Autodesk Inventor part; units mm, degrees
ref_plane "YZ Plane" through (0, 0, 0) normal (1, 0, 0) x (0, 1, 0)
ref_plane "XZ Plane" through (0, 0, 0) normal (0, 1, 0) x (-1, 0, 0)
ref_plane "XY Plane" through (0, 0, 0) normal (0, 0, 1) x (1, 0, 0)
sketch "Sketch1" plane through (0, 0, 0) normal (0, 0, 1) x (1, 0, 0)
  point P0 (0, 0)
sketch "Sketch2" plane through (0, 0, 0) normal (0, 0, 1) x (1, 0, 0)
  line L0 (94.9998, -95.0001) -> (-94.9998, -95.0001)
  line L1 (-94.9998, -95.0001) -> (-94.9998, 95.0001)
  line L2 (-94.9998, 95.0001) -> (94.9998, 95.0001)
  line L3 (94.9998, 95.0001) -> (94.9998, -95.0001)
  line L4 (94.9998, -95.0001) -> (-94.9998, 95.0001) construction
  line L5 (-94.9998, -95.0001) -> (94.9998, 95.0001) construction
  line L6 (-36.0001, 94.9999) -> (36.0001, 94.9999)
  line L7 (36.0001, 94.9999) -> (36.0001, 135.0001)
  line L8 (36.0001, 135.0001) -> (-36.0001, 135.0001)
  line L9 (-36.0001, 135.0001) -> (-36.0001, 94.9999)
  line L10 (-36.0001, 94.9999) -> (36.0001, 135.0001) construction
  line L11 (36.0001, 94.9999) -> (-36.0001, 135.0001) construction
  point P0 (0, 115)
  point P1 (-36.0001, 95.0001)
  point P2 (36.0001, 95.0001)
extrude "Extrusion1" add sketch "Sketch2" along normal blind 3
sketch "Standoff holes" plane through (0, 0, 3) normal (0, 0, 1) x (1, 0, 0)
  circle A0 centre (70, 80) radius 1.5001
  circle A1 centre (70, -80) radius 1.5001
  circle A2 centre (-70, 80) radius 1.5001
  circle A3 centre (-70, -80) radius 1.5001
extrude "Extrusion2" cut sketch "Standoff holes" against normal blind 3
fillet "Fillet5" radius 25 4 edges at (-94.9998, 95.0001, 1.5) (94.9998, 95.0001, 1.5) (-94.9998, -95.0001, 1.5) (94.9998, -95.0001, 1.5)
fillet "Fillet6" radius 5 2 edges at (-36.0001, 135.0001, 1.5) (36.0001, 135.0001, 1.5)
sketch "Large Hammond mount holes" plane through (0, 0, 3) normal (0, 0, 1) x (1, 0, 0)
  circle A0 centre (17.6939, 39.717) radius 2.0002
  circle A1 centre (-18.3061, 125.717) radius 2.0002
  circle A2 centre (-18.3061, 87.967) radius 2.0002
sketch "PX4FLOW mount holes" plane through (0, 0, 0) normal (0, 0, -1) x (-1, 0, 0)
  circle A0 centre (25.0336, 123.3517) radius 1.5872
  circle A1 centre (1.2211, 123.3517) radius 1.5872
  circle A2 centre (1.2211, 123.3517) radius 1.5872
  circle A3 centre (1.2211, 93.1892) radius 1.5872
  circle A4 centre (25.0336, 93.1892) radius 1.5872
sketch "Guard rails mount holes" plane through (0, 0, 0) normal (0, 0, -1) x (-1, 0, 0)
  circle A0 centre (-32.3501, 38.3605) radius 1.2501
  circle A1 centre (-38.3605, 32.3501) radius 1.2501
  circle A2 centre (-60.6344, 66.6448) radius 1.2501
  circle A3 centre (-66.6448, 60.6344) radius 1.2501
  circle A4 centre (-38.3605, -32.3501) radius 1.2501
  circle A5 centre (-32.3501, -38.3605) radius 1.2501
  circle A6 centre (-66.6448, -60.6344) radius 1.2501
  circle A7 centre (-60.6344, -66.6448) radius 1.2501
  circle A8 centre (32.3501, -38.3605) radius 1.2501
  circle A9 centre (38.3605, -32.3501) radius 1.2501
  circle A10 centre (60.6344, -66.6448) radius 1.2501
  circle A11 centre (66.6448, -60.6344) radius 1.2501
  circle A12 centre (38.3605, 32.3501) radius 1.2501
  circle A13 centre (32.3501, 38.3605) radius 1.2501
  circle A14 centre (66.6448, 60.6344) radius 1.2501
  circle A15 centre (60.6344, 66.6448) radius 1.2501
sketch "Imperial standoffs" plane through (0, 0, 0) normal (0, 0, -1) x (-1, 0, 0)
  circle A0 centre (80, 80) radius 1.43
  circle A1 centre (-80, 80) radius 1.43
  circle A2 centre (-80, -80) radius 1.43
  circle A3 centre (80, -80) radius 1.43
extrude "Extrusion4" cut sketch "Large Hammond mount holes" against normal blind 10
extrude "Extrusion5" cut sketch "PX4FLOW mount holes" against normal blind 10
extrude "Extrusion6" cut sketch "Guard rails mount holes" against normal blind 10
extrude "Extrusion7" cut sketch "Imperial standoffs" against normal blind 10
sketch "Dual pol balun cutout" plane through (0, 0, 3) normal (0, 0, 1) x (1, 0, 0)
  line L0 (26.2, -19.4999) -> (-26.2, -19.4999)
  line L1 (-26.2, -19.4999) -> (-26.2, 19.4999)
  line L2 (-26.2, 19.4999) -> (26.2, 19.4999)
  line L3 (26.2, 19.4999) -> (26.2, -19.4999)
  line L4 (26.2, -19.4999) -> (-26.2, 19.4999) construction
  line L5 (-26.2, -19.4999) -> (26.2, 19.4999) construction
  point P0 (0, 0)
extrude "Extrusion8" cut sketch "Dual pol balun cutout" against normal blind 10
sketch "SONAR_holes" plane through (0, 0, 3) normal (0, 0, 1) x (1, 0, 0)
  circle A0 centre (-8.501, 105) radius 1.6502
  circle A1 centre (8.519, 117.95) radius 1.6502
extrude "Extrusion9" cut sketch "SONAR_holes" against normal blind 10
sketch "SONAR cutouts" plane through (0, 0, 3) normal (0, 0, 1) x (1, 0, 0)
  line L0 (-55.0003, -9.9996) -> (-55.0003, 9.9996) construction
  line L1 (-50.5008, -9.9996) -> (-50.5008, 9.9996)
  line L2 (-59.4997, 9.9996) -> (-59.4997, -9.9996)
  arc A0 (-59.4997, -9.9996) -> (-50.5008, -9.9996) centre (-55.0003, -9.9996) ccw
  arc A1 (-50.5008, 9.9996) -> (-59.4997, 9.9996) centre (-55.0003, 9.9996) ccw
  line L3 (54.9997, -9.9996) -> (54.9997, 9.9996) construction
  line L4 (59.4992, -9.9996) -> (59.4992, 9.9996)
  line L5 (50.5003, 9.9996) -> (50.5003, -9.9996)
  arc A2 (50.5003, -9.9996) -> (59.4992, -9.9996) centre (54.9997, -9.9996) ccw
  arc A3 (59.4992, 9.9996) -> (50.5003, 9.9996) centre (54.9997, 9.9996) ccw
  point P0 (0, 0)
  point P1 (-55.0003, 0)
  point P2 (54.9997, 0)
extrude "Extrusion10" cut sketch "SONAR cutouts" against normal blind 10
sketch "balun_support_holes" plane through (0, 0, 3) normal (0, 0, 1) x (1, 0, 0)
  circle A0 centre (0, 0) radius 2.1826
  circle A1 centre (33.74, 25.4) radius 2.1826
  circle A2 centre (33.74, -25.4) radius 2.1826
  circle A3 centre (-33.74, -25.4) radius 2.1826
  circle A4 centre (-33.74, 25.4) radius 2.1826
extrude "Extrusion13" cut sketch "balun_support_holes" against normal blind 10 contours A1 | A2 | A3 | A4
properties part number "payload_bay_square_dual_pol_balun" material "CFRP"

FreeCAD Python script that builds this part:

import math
import FreeCAD as App
import Part
import Sketcher
from FreeCAD import Vector
Q = App.Units.Quantity


def edges_at(feature, points):
    """Names of the edges that pass closest to the given points."""
    edges = feature.Shape.Edges
    near = lambda p: min(range(len(edges)), key=lambda i: edges[i].distToShape(Part.Vertex(*p))[0])
    return sorted({f"Edge{near(p) + 1}" for p in points})

doc = App.newDocument("Part")
params = doc.addObject("Spreadsheet::Sheet", "Params")
for row, (alias, value) in enumerate([
    ("pad1_length", "3 mm"),
    ("pocket1_length", "3 mm"),
    ("fillet_radius", "25 mm"),
    ("fillet2_radius", "5 mm"),
    ("pocket2_length", "10 mm"),
    ("pocket3_length", "10 mm"),
    ("pocket4_length", "10 mm"),
    ("sketch6_diameter", "2.86 mm"),
    ("pocket5_length", "10 mm"),
    ("sketch7_width", "52.4 mm"),
    ("pocket6_length", "10 mm"),
    ("pocket7_length", "10 mm"),
    ("pocket8_length", "10 mm"),
    ("pocket9_length", "10 mm"),
], start=1):
    params.set(f"A{row}", alias)
    params.set(f"B{row}", "=" + value)
    params.setAlias(f"B{row}", alias)

body = doc.addObject("PartDesign::Body", "Body")

# Sketch on XY plane
sketch1 = body.newObject("Sketcher::SketchObject", "Sketch")
sketch1.AttachmentSupport = (doc.getObject("XY_Plane"), [""])
sketch1.MapMode = "FlatFace"
sketch1.addGeometry(Part.LineSegment(Vector(-94.9998, -95.0001, 0), Vector(94.9998, -95.0001, 0)), False)
sketch1.addGeometry(Part.LineSegment(Vector(94.9998, -95.0001, 0), Vector(94.9998, 95.0001, 0)), False)
sketch1.addGeometry(Part.LineSegment(Vector(94.9998, 95.0001, 0), Vector(36.0001, 95.0001, 0)), False)
sketch1.addGeometry(Part.LineSegment(Vector(36.0001, 94.9999, 0), Vector(36.0001, 135.0001, 0)), False)
sketch1.addGeometry(Part.LineSegment(Vector(36.0001, 135.0001, 0), Vector(-36.0001, 135.0001, 0)), False)
sketch1.addGeometry(Part.LineSegment(Vector(-36.0001, 135.0001, 0), Vector(-36.0001, 94.9999, 0)), False)
sketch1.addGeometry(Part.LineSegment(Vector(-36.0001, 95.0001, 0), Vector(-94.9998, 95.0001, 0)), False)
sketch1.addGeometry(Part.LineSegment(Vector(-94.9998, 95.0001, 0), Vector(-94.9998, -95.0001, 0)), False)
sketch1.addConstraint(Sketcher.Constraint("Coincident", 0, 2, 1, 1))
sketch1.addConstraint(Sketcher.Constraint("Coincident", 1, 2, 2, 1))
sketch1.addConstraint(Sketcher.Constraint("Coincident", 2, 2, 3, 1))
sketch1.addConstraint(Sketcher.Constraint("Coincident", 3, 2, 4, 1))
sketch1.addConstraint(Sketcher.Constraint("Coincident", 4, 2, 5, 1))
sketch1.addConstraint(Sketcher.Constraint("Coincident", 5, 2, 6, 1))
sketch1.addConstraint(Sketcher.Constraint("Coincident", 6, 2, 7, 1))
sketch1.addConstraint(Sketcher.Constraint("Coincident", 7, 2, 0, 1))
sketch1.addConstraint(Sketcher.Constraint("Horizontal", 0))
sketch1.addConstraint(Sketcher.Constraint("Vertical", 1))
sketch1.addConstraint(Sketcher.Constraint("Horizontal", 2))
sketch1.addConstraint(Sketcher.Constraint("Vertical", 3))
sketch1.addConstraint(Sketcher.Constraint("Horizontal", 4))
sketch1.addConstraint(Sketcher.Constraint("Vertical", 5))
sketch1.addConstraint(Sketcher.Constraint("Horizontal", 6))
sketch1.addConstraint(Sketcher.Constraint("Vertical", 7))
sketch1.addConstraint(Sketcher.Constraint("Symmetric", 0, 2, 6, 2, -1, 1))
sketch1.addConstraint(Sketcher.Constraint("Symmetric", 2, 2, 5, 2, -2))
sketch1.addConstraint(Sketcher.Constraint("DistanceY", 0, 2, -1, 1, Q("95 mm")))
sketch1.addConstraint(Sketcher.Constraint("DistanceX", -1, 1, 2, 2, Q("36 mm")))
sketch1.addConstraint(Sketcher.Constraint("DistanceY", -1, 1, 3, 2, Q("135 mm")))
sketch1.addConstraint(Sketcher.Constraint("DistanceX", 4, 2, 1, 2, Q("131 mm")))
pad1 = body.newObject("PartDesign::Pad", "Pad")
pad1.Profile = sketch1
pad1.setExpression("Length", "Params.pad1_length")

# Sketch on XY plane
sketch2 = body.newObject("Sketcher::SketchObject", "Sketch001")
sketch2.AttachmentSupport = (doc.getObject("XY_Plane"), [""])
sketch2.MapMode = "FlatFace"
sketch2.AttachmentOffset = App.Placement(Vector(0, 0, 3), App.Rotation())
sketch2.addGeometry(Part.Circle(Vector(70, 80, 0), Vector(0, 0, 1), 1.5001), False)
sketch2.addGeometry(Part.Circle(Vector(70, -80, 0), Vector(0, 0, 1), 1.5001), False)
sketch2.addGeometry(Part.Circle(Vector(-70, 80, 0), Vector(0, 0, 1), 1.5001), False)
sketch2.addGeometry(Part.Circle(Vector(-70, -80, 0), Vector(0, 0, 1), 1.5001), False)
sketch2.addConstraint(Sketcher.Constraint("Equal", 0, 1))
sketch2.addConstraint(Sketcher.Constraint("Equal", 1, 2))
sketch2.addConstraint(Sketcher.Constraint("Equal", 2, 3))
sketch2.addConstraint(Sketcher.Constraint("Symmetric", 1, 3, 2, 3, -1, 1))
sketch2.addConstraint(Sketcher.Constraint("Symmetric", 0, 3, 3, 3, -1, 1))
sketch2.addConstraint(Sketcher.Constraint("Symmetric", 0, 3, 2, 3, -2))
sketch2.addConstraint(Sketcher.Constraint("DistanceX", -1, 1, 0, 3, Q("70 mm")))
sketch2.addConstraint(Sketcher.Constraint("DistanceY", -1, 1, 0, 3, Q("80 mm")))
sketch2.addConstraint(Sketcher.Constraint("Diameter", 0, Q("3.0002 mm")))
pocket1 = body.newObject("PartDesign::Pocket", "Pocket")
pocket1.Profile = sketch2
pocket1.setExpression("Length", "Params.pocket1_length")
doc.recompute()

fillet = body.newObject("PartDesign::Fillet", "Fillet")
fillet.Base = (pocket1, edges_at(pocket1, [
    (-95, 95, 1.5),
    (95, 95, 1.5),
    (-95, -95, 1.5),
    (95, -95, 1.5),
]))
fillet.setExpression("Radius", "Params.fillet_radius")
doc.recompute()

fillet2 = body.newObject("PartDesign::Fillet", "Fillet001")
fillet2.Base = (fillet, edges_at(fillet, [(-36, 135, 1.5), (36, 135, 1.5)]))
fillet2.setExpression("Radius", "Params.fillet2_radius")

# Sketch on XY plane
sketch3 = body.newObject("Sketcher::SketchObject", "Sketch002")
sketch3.AttachmentSupport = (doc.getObject("XY_Plane"), [""])
sketch3.MapMode = "FlatFace"
sketch3.AttachmentOffset = App.Placement(Vector(0, 0, 3), App.Rotation())
sketch3.addGeometry(Part.Circle(Vector(17.6939, 39.717, 0), Vector(0, 0, 1), 2.0002), False)
sketch3.addGeometry(Part.Circle(Vector(-18.3061, 125.717, 0), Vector(0, 0, 1), 2.0002), False)
sketch3.addGeometry(Part.Circle(Vector(-18.3061, 87.967, 0), Vector(0, 0, 1), 2.0002), False)
sketch3.addConstraint(Sketcher.Constraint("Equal", 0, 1))
sketch3.addConstraint(Sketcher.Constraint("Equal", 1, 2))
sketch3.addConstraint(Sketcher.Constraint("Vertical", 1, 3, 2, 3))
sketch3.addConstraint(Sketcher.Constraint("DistanceX", 1, 3, 0, 3, Q("36 mm")))
sketch3.addConstraint(Sketcher.Constraint("DistanceY", 0, 3, 1, 3, Q("86 mm")))
sketch3.addConstraint(Sketcher.Constraint("Diameter", 0, Q("4.0004 mm")))
sketch3.addConstraint(Sketcher.Constraint("DistanceY", 2, 3, 1, 3, Q("37.75 mm")))
sketch3.addConstraint(Sketcher.Constraint("DistanceX", -1, 1, 0, 3, Q("17.694 mm")))
sketch3.addConstraint(Sketcher.Constraint("DistanceY", -1, 1, 0, 3, Q("39.717 mm")))
pocket2 = body.newObject("PartDesign::Pocket", "Pocket001")
pocket2.Profile = sketch3
pocket2.setExpression("Length", "Params.pocket2_length")

# Sketch on XY plane
sketch4 = body.newObject("Sketcher::SketchObject", "Sketch003")
sketch4.AttachmentSupport = (doc.getObject("XY_Plane"), [""])
sketch4.MapMode = "FlatFace"
sketch4.addGeometry(Part.Circle(Vector(-25.0336, 123.3517, 0), Vector(0, 0, 1), 1.5872), False)
sketch4.addGeometry(Part.Circle(Vector(-1.2211, 123.3517, 0), Vector(0, 0, 1), 1.5872), False)
sketch4.addGeometry(Part.Circle(Vector(-1.2211, 93.1892, 0), Vector(0, 0, 1), 1.5872), False)
sketch4.addGeometry(Part.Circle(Vector(-25.0336, 93.1892, 0), Vector(0, 0, 1), 1.5872), False)
sketch4.addConstraint(Sketcher.Constraint("Equal", 0, 1))
sketch4.addConstraint(Sketcher.Constraint("Equal", 1, 2))
sketch4.addConstraint(Sketcher.Constraint("Equal", 2, 3))
sketch4.addConstraint(Sketcher.Constraint("Horizontal", 0, 3, 1, 3))
sketch4.addConstraint(Sketcher.Constraint("Horizontal", 2, 3, 3, 3))
sketch4.addConstraint(Sketcher.Constraint("Vertical", 1, 3, 2, 3))
sketch4.addConstraint(Sketcher.Constraint("Vertical", 0, 3, 3, 3))
sketch4.addConstraint(Sketcher.Constraint("Diameter", 0, Q("3.1744 mm")))
sketch4.addConstraint(Sketcher.Constraint("DistanceX", 1, 3, -1, 1, Q("1.221 mm")))
sketch4.addConstraint(Sketcher.Constraint("DistanceX", 0, 3, -1, 1, Q("25.0336 mm")))
sketch4.addConstraint(Sketcher.Constraint("DistanceY", -1, 1, 0, 3, Q("123.3517 mm")))
sketch4.addConstraint(Sketcher.Constraint("DistanceY", -1, 1, 2, 3, Q("93.1892 mm")))
pocket3 = body.newObject("PartDesign::Pocket", "Pocket002")
pocket3.Profile = sketch4
pocket3.setExpression("Length", "Params.pocket3_length")
pocket3.Reversed = True

# Sketch on XY plane
sketch5 = body.newObject("Sketcher::SketchObject", "Sketch004")
sketch5.AttachmentSupport = (doc.getObject("XY_Plane"), [""])
sketch5.MapMode = "FlatFace"
sketch5.addGeometry(Part.Circle(Vector(32.3501, 38.3605, 0), Vector(0, 0, 1), 1.2501), False)
sketch5.addGeometry(Part.Circle(Vector(38.3605, 32.3501, 0), Vector(0, 0, 1), 1.2501), False)
sketch5.addGeometry(Part.Circle(Vector(60.6344, 66.6448, 0), Vector(0, 0, 1), 1.2501), False)
sketch5.addGeometry(Part.Circle(Vector(66.6448, 60.6344, 0), Vector(0, 0, 1), 1.2501), False)
sketch5.addGeometry(Part.Circle(Vector(38.3605, -32.3501, 0), Vector(0, 0, 1), 1.2501), False)
sketch5.addGeometry(Part.Circle(Vector(32.3501, -38.3605, 0), Vector(0, 0, 1), 1.2501), False)
sketch5.addGeometry(Part.Circle(Vector(66.6448, -60.6344, 0), Vector(0, 0, 1), 1.2501), False)
sketch5.addGeometry(Part.Circle(Vector(60.6344, -66.6448, 0), Vector(0, 0, 1), 1.2501), False)
sketch5.addGeometry(Part.Circle(Vector(-32.3501, -38.3605, 0), Vector(0, 0, 1), 1.2501), False)
sketch5.addGeometry(Part.Circle(Vector(-38.3605, -32.3501, 0), Vector(0, 0, 1), 1.2501), False)
sketch5.addGeometry(Part.Circle(Vector(-60.6344, -66.6448, 0), Vector(0, 0, 1), 1.2501), False)
sketch5.addGeometry(Part.Circle(Vector(-66.6448, -60.6344, 0), Vector(0, 0, 1), 1.2501), False)
sketch5.addGeometry(Part.Circle(Vector(-38.3605, 32.3501, 0), Vector(0, 0, 1), 1.2501), False)
sketch5.addGeometry(Part.Circle(Vector(-32.3501, 38.3605, 0), Vector(0, 0, 1), 1.2501), False)
sketch5.addGeometry(Part.Circle(Vector(-66.6448, 60.6344, 0), Vector(0, 0, 1), 1.2501), False)
sketch5.addGeometry(Part.Circle(Vector(-60.6344, 66.6448, 0), Vector(0, 0, 1), 1.2501), False)
sketch5.addConstraint(Sketcher.Constraint("Equal", 0, 1))
sketch5.addConstraint(Sketcher.Constraint("Equal", 1, 2))
sketch5.addConstraint(Sketcher.Constraint("Equal", 2, 3))
sketch5.addConstraint(Sketcher.Constraint("Equal", 3, 4))
sketch5.addConstraint(Sketcher.Constraint("Equal", 4, 5))
sketch5.addConstraint(Sketcher.Constraint("Equal", 5, 6))
sketch5.addConstraint(Sketcher.Constraint("Equal", 6, 7))
sketch5.addConstraint(Sketcher.Constraint("Equal", 7, 8))
sketch5.addConstraint(Sketcher.Constraint("Equal", 8, 9))
sketch5.addConstraint(Sketcher.Constraint("Equal", 9, 10))
sketch5.addConstraint(Sketcher.Constraint("Equal", 10, 11))
sketch5.addConstraint(Sketcher.Constraint("Equal", 11, 12))
sketch5.addConstraint(Sketcher.Constraint("Equal", 12, 13))
sketch5.addConstraint(Sketcher.Constraint("Equal", 13, 14))
sketch5.addConstraint(Sketcher.Constraint("Equal", 14, 15))
sketch5.addConstraint(Sketcher.Constraint("Symmetric", 0, 3, 8, 3, -1, 1))
sketch5.addConstraint(Sketcher.Constraint("Symmetric", 1, 3, 9, 3, -1, 1))
sketch5.addConstraint(Sketcher.Constraint("Symmetric", 2, 3, 10, 3, -1, 1))
sketch5.addConstraint(Sketcher.Constraint("Symmetric", 3, 3, 11, 3, -1, 1))
sketch5.addConstraint(Sketcher.Constraint("Symmetric", 4, 3, 12, 3, -1, 1))
sketch5.addConstraint(Sketcher.Constraint("Symmetric", 5, 3, 13, 3, -1, 1))
sketch5.addConstraint(Sketcher.Constraint("Symmetric", 6, 3, 14, 3, -1, 1))
sketch5.addConstraint(Sketcher.Constraint("Symmetric", 7, 3, 15, 3, -1, 1))
sketch5.addConstraint(Sketcher.Constraint("Symmetric", 5, 3, 8, 3, -2))
sketch5.addConstraint(Sketcher.Constraint("Symmetric", 4, 3, 9, 3, -2))
sketch5.addConstraint(Sketcher.Constraint("Symmetric", 7, 3, 10, 3, -2))
sketch5.addConstraint(Sketcher.Constraint("Symmetric", 6, 3, 11, 3, -2))
sketch5.addConstraint(Sketcher.Constraint("Diameter", 0, Q("2.5002 mm")))
sketch5.addConstraint(Sketcher.Constraint("DistanceX", -1, 1, 0, 3, Q("32.35 mm")))
sketch5.addConstraint(Sketcher.Constraint("DistanceY", -1, 1, 1, 3, Q("32.35 mm")))
sketch5.addConstraint(Sketcher.Constraint("DistanceX", 1, 3, 2, 3, Q("22.274 mm")))
sketch5.addConstraint(Sketcher.Constraint("DistanceY", 0, 3, 3, 3, Q("22.274 mm")))
sketch5.addConstraint(Sketcher.Constraint("DistanceY", 4, 3, 2, 3, Q("98.995 mm")))
sketch5.addConstraint(Sketcher.Constraint("DistanceY", 5, 3, 0, 3, Q("76.721 mm")))
sketch5.addConstraint(Sketcher.Constraint("DistanceX", 9, 3, 4, 3, Q("76.721 mm")))
sketch5.addConstraint(Sketcher.Constraint("DistanceX", 11, 3, 5, 3, Q("98.995 mm")))
pocket4 = body.newObject("PartDesign::Pocket", "Pocket003")
pocket4.Profile = sketch5
pocket4.setExpression("Length", "Params.pocket4_length")
pocket4.Reversed = True

# Sketch on XY plane
sketch6 = body.newObject("Sketcher::SketchObject", "Sketch005")
sketch6.AttachmentSupport = (doc.getObject("XY_Plane"), [""])
sketch6.MapMode = "FlatFace"
sketch6.addGeometry(Part.Circle(Vector(-80, 80, 0), Vector(0, 0, 1), 1.43), False)
sketch6.addGeometry(Part.Circle(Vector(80, 80, 0), Vector(0, 0, 1), 1.43), False)
sketch6.addGeometry(Part.Circle(Vector(80, -80, 0), Vector(0, 0, 1), 1.43), False)
sketch6.addGeometry(Part.Circle(Vector(-80, -80, 0), Vector(0, 0, 1), 1.43), False)
sketch6.addConstraint(Sketcher.Constraint("Equal", 0, 1))
sketch6.addConstraint(Sketcher.Constraint("Equal", 1, 2))
sketch6.addConstraint(Sketcher.Constraint("Equal", 2, 3))
sketch6.addConstraint(Sketcher.Constraint("Symmetric", 0, 3, 2, 3, -1, 1))
sketch6.addConstraint(Sketcher.Constraint("Symmetric", 1, 3, 3, 3, -1, 1))
sketch6.addConstraint(Sketcher.Constraint("Symmetric", 0, 3, 1, 3, -2))
sketch6.addConstraint(Sketcher.Constraint("Diameter", 0, Q("2.86 mm")))
sketch6.addConstraint(Sketcher.Constraint("DistanceX", 0, 3, -1, 1, Q("80 mm")))
sketch6.addConstraint(Sketcher.Constraint("DistanceY", -1, 1, 0, 3, Q("80 mm")))
sketch6.setExpression("Constraints[6]", "Params.sketch6_diameter")
pocket5 = body.newObject("PartDesign::Pocket", "Pocket004")
pocket5.Profile = sketch6
pocket5.setExpression("Length", "Params.pocket5_length")
pocket5.Reversed = True

# Sketch on XY plane
sketch7 = body.newObject("Sketcher::SketchObject", "Sketch006")
sketch7.AttachmentSupport = (doc.getObject("XY_Plane"), [""])
sketch7.MapMode = "FlatFace"
sketch7.AttachmentOffset = App.Placement(Vector(0, 0, 3), App.Rotation())
sketch7.addGeometry(Part.LineSegment(Vector(-26.2, -19.4999, 0), Vector(26.2, -19.4999, 0)), False)
sketch7.addGeometry(Part.LineSegment(Vector(26.2, -19.4999, 0), Vector(26.2, 19.4999, 0)), False)
sketch7.addGeometry(Part.LineSegment(Vector(26.2, 19.4999, 0), Vector(-26.2, 19.4999, 0)), False)
sketch7.addGeometry(Part.LineSegment(Vector(-26.2, 19.4999, 0), Vector(-26.2, -19.4999, 0)), False)
sketch7.addConstraint(Sketcher.Constraint("Coincident", 0, 2, 1, 1))
sketch7.addConstraint(Sketcher.Constraint("Coincident", 1, 2, 2, 1))
sketch7.addConstraint(Sketcher.Constraint("Coincident", 2, 2, 3, 1))
sketch7.addConstraint(Sketcher.Constraint("Coincident", 3, 2, 0, 1))
sketch7.addConstraint(Sketcher.Constraint("Horizontal", 0))
sketch7.addConstraint(Sketcher.Constraint("Vertical", 1))
sketch7.addConstraint(Sketcher.Constraint("Horizontal", 2))
sketch7.addConstraint(Sketcher.Constraint("Vertical", 3))
sketch7.addConstraint(Sketcher.Constraint("Symmetric", 0, 2, 2, 2, -1, 1))
sketch7.addConstraint(Sketcher.Constraint("DistanceX", 0, 1, 0, 2, Q("52.4 mm")))
sketch7.addConstraint(Sketcher.Constraint("DistanceY", 0, 2, -1, 1, Q("19.5 mm")))
sketch7.setExpression("Constraints[9]", "Params.sketch7_width")
pocket6 = body.newObject("PartDesign::Pocket", "Pocket005")
pocket6.Profile = sketch7
pocket6.setExpression("Length", "Params.pocket6_length")

# Sketch on XY plane
sketch8 = body.newObject("Sketcher::SketchObject", "Sketch007")
sketch8.AttachmentSupport = (doc.getObject("XY_Plane"), [""])
sketch8.MapMode = "FlatFace"
sketch8.AttachmentOffset = App.Placement(Vector(0, 0, 3), App.Rotation())
sketch8.addGeometry(Part.Circle(Vector(-8.501, 105, 0), Vector(0, 0, 1), 1.6502), False)
sketch8.addGeometry(Part.Circle(Vector(8.519, 117.95, 0), Vector(0, 0, 1), 1.6502), False)
sketch8.addConstraint(Sketcher.Constraint("Equal", 0, 1))
sketch8.addConstraint(Sketcher.Constraint("DistanceY", -1, 1, 0, 3, Q("105 mm")))
sketch8.addConstraint(Sketcher.Constraint("Diameter", 0, Q("3.3004 mm")))
sketch8.addConstraint(Sketcher.Constraint("DistanceY", -1, 1, 1, 3, Q("117.95 mm")))
sketch8.addConstraint(Sketcher.Constraint("DistanceX", 0, 3, 1, 3, Q("17.02 mm")))
sketch8.addConstraint(Sketcher.Constraint("DistanceX", 0, 3, -1, 1, Q("8.501 mm")))
pocket7 = body.newObject("PartDesign::Pocket", "Pocket006")
pocket7.Profile = sketch8
pocket7.setExpression("Length", "Params.pocket7_length")

# Sketch on XY plane
sketch9 = body.newObject("Sketcher::SketchObject", "Sketch008")
sketch9.AttachmentSupport = (doc.getObject("XY_Plane"), [""])
sketch9.MapMode = "FlatFace"
sketch9.AttachmentOffset = App.Placement(Vector(0, 0, 3), App.Rotation())
sketch9.addGeometry(Part.ArcOfCircle(Part.Circle(Vector(-55.0003, -9.9996, 0), Vector(0, 0, 1), 4.4994), math.radians(180), math.radians(360)), False)
sketch9.addGeometry(Part.LineSegment(Vector(-50.5008, -9.9996, 0), Vector(-50.5008, 9.9996, 0)), False)
sketch9.addGeometry(Part.ArcOfCircle(Part.Circle(Vector(-55.0003, 9.9996, 0), Vector(0, 0, 1), 4.4995), math.radians(0), math.radians(180)), False)
sketch9.addGeometry(Part.LineSegment(Vector(-59.4997, 9.9996, 0), Vector(-59.4997, -9.9996, 0)), False)
sketch9.addGeometry(Part.ArcOfCircle(Part.Circle(Vector(54.9997, -9.9996, 0), Vector(0, 0, 1), 4.4994), math.radians(180), math.radians(360)), False)
sketch9.addGeometry(Part.LineSegment(Vector(59.4992, -9.9996, 0), Vector(59.4992, 9.9996, 0)), False)
sketch9.addGeometry(Part.ArcOfCircle(Part.Circle(Vector(54.9997, 9.9996, 0), Vector(0, 0, 1), 4.4995), math.radians(0), math.radians(180)), False)
sketch9.addGeometry(Part.LineSegment(Vector(50.5003, 9.9996, 0), Vector(50.5003, -9.9996, 0)), False)
sketch9.addConstraint(Sketcher.Constraint("Tangent", 0, 2, 1, 1))
sketch9.addConstraint(Sketcher.Constraint("Tangent", 1, 2, 2, 1))
sketch9.addConstraint(Sketcher.Constraint("Tangent", 2, 2, 3, 1))
sketch9.addConstraint(Sketcher.Constraint("Tangent", 3, 2, 0, 1))
sketch9.addConstraint(Sketcher.Constraint("Tangent", 4, 2, 5, 1))
sketch9.addConstraint(Sketcher.Constraint("Tangent", 5, 2, 6, 1))
sketch9.addConstraint(Sketcher.Constraint("Tangent", 6, 2, 7, 1))
sketch9.addConstraint(Sketcher.Constraint("Tangent", 7, 2, 4, 1))
sketch9.addConstraint(Sketcher.Constraint("Vertical", 1))
sketch9.addConstraint(Sketcher.Constraint("Vertical", 3))
sketch9.addConstraint(Sketcher.Constraint("Vertical", 5))
sketch9.addConstraint(Sketcher.Constraint("Vertical", 7))
sketch9.addConstraint(Sketcher.Constraint("Equal", 2, 4))
sketch9.addConstraint(Sketcher.Constraint("Horizontal", 0, 3, 4, 3))
sketch9.addConstraint(Sketcher.Constraint("Horizontal", 2, 3, 6, 3))
sketch9.addConstraint(Sketcher.Constraint("DistanceX", 0, 3, 4, 3, Q("110 mm")))
sketch9.addConstraint(Sketcher.Constraint("Radius", 0, Q("4.4994 mm")))
sketch9.addConstraint(Sketcher.Constraint("DistanceY", 1, 1, 1, 2, Q("19.9992 mm")))
sketch9.addConstraint(Sketcher.Constraint("DistanceX", 0, 2, -1, 1, Q("50.501 mm")))
sketch9.addConstraint(Sketcher.Constraint("DistanceY", 0, 3, -1, 1, Q("9.9996 mm")))
pocket8 = body.newObject("PartDesign::Pocket", "Pocket007")
pocket8.Profile = sketch9
pocket8.setExpression("Length", "Params.pocket8_length")

# Sketch on XY plane
sketch10 = body.newObject("Sketcher::SketchObject", "Sketch009")
sketch10.AttachmentSupport = (doc.getObject("XY_Plane"), [""])
sketch10.MapMode = "FlatFace"
sketch10.AttachmentOffset = App.Placement(Vector(0, 0, 3), App.Rotation())
sketch10.addGeometry(Part.Circle(Vector(33.74, 25.4, 0), Vector(0, 0, 1), 2.1826), False)
sketch10.addGeometry(Part.Circle(Vector(33.74, -25.4, 0), Vector(0, 0, 1), 2.1826), False)
sketch10.addGeometry(Part.Circle(Vector(-33.74, -25.4, 0), Vector(0, 0, 1), 2.1826), False)
sketch10.addGeometry(Part.Circle(Vector(-33.74, 25.4, 0), Vector(0, 0, 1), 2.1826), False)
sketch10.addConstraint(Sketcher.Constraint("Equal", 0, 1))
sketch10.addConstraint(Sketcher.Constraint("Equal", 1, 2))
sketch10.addConstraint(Sketcher.Constraint("Equal", 2, 3))
sketch10.addConstraint(Sketcher.Constraint("Symmetric", 0, 3, 2, 3, -1, 1))
sketch10.addConstraint(Sketcher.Constraint("Symmetric", 1, 3, 3, 3, -1, 1))
sketch10.addConstraint(Sketcher.Constraint("Symmetric", 1, 3, 2, 3, -2))
sketch10.addConstraint(Sketcher.Constraint("Diameter", 0, Q("4.3652 mm")))
sketch10.addConstraint(Sketcher.Constraint("DistanceY", -1, 1, 0, 3, Q("25.4 mm")))
sketch10.addConstraint(Sketcher.Constraint("DistanceX", -1, 1, 0, 3, Q("33.74 mm")))
pocket9 = body.newObject("PartDesign::Pocket", "Pocket008")
pocket9.Profile = sketch10
pocket9.setExpression("Length", "Params.pocket9_length")

doc.recompute()
